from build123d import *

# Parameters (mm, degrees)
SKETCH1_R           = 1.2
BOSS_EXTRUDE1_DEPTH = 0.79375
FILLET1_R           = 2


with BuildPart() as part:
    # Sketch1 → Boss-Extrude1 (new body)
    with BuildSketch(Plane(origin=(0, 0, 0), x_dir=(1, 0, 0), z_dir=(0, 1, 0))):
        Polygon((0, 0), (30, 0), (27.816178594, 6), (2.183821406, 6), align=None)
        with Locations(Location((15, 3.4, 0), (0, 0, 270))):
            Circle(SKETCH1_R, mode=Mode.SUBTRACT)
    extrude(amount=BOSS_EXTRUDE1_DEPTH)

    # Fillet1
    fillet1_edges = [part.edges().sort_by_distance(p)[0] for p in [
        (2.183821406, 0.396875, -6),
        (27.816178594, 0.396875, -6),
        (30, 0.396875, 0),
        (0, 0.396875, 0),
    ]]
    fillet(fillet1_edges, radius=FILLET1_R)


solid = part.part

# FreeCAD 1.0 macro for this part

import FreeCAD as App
import Part
import Sketcher

V = App.Vector
Q = App.Units.Quantity


def edges_at(feature, points):
    """Names of the edges that pass closest to the given points."""
    edges = feature.Shape.Edges
    near = lambda p: min(range(len(edges)), key=lambda i: edges[i].distToShape(Part.Vertex(*p))[0])
    return sorted({f"Edge{near(p) + 1}" for p in points})


def add_polygon(sketch, points):
    """Adds a closed chain of lines whose ends are joined by coincident constraints."""
    first, n = sketch.GeometryCount, len(points)
    for a, b in zip(points, points[1:] + points[:1]):
        sketch.addGeometry(Part.LineSegment(App.Vector(*a, 0), App.Vector(*b, 0)), False)
    for i in range(n):
        sketch.addConstraint(Sketcher.Constraint("Coincident", first + i, 2, first + (i + 1) % n, 1))

doc = App.newDocument("Part")
body = doc.addObject("PartDesign::Body", "Body")

sketch1 = body.newObject("Sketcher::SketchObject", "Sketch")
sketch1.AttachmentSupport = (doc.getObject("XZ_Plane"), [""])
sketch1.MapMode = "FlatFace"
add_polygon(sketch1, [(0, 0), (30, 0), (27.8, -6), (2.2, -6)])
sketch1.addGeometry(Part.Circle(V(15, -3.4, 0), V(0, 0, 1), 1.2), False)
sketch1.addConstraint([
    Sketcher.Constraint("Horizontal", 0),
    Sketcher.Constraint("Horizontal", 2),
    Sketcher.Constraint("Coincident", 3, 2, -1, 1),
    Sketcher.Constraint("Equal", 1, 3),
    Sketcher.Constraint("Diameter", 4, 2.4),
    Sketcher.Constraint("DistanceX", 0, 1, 0, 2, 30.0),
    Sketcher.Constraint("Angle", 1, Q("-110 deg")),
    Sketcher.Constraint("DistanceX", -1, 1, 4, 3, 15.0),
    Sketcher.Constraint("DistanceY", 1, 2, -1, 1, 6.0),
    Sketcher.Constraint("DistanceY", 4, 3, -1, 1, 3.4),
])
pad1 = body.newObject("PartDesign::Pad", "Pad")
pad1.Profile = sketch1
pad1.Length = 0.79375
pad1.Reversed = True
doc.recompute()

fillet = body.newObject("PartDesign::Fillet", "Fillet")
fillet.Base = (pad1, edges_at(pad1, [
    (2.184, 0.397, -6),
    (27.816, 0.397, -6),
    (30, 0.397, 0),
    (0, 0.397, 0),
]))
fillet.Radius = 2

doc.recompute()
